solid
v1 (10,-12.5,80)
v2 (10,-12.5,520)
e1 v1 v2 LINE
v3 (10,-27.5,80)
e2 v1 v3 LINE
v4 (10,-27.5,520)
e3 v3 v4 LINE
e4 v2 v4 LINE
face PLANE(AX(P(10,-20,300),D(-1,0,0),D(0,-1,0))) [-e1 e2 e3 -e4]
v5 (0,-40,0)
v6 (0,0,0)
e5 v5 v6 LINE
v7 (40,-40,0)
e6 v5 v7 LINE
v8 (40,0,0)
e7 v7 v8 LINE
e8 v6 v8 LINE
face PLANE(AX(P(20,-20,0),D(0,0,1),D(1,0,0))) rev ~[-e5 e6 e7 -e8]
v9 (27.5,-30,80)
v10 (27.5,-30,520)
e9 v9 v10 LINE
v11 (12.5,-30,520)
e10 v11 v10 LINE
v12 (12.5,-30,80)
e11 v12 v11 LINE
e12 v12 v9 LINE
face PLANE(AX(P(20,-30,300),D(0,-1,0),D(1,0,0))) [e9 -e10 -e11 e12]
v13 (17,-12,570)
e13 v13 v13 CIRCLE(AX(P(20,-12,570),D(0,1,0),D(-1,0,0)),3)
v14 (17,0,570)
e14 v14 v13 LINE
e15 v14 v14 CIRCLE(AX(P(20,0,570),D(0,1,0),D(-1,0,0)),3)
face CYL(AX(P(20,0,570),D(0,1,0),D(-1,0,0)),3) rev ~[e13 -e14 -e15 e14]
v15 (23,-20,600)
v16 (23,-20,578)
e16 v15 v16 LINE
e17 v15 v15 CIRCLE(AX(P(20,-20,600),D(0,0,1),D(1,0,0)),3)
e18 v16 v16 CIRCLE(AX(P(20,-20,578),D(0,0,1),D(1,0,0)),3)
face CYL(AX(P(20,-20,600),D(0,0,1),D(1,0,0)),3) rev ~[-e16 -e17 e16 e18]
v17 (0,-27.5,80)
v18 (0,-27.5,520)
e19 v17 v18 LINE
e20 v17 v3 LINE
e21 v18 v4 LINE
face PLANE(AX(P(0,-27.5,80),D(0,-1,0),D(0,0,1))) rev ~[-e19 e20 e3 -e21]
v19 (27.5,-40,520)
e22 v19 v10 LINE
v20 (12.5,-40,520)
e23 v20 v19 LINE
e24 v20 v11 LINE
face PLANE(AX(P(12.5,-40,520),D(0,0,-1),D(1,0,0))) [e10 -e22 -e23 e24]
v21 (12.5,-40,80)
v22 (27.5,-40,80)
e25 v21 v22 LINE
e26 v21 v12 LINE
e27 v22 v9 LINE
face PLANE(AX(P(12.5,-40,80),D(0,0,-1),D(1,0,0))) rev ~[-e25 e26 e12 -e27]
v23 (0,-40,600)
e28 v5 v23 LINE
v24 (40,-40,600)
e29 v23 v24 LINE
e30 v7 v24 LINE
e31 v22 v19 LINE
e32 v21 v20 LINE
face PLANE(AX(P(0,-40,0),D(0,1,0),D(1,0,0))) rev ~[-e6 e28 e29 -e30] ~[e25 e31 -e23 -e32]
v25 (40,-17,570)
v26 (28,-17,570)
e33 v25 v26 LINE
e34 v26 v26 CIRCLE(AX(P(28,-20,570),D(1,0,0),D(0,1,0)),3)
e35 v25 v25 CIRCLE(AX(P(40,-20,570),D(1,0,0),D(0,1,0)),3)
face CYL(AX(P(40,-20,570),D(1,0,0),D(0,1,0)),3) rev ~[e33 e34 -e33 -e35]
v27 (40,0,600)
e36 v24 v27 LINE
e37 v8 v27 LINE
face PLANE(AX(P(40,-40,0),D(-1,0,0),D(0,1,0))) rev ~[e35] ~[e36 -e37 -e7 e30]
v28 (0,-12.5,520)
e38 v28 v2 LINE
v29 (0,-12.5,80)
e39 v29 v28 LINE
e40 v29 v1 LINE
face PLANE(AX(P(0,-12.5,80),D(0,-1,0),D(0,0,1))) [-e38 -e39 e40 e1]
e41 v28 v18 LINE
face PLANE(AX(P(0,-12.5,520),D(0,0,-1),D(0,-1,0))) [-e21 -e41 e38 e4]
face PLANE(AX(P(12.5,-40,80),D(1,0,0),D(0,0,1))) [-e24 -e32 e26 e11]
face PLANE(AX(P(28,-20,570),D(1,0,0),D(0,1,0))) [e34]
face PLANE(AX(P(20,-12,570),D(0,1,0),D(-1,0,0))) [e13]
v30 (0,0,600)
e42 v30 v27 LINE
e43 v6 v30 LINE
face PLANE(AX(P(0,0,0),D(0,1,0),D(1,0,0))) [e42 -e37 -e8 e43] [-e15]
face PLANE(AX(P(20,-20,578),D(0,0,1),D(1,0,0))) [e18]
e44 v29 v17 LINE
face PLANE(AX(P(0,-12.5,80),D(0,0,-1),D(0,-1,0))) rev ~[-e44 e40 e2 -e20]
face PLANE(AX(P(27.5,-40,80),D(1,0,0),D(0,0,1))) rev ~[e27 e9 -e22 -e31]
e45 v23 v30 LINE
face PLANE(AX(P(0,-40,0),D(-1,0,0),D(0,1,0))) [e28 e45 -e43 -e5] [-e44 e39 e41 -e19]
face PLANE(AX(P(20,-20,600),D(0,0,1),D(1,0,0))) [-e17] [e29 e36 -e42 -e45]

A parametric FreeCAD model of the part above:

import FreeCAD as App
import Part
import Sketcher

V = App.Vector

doc = App.newDocument("Part")
body = doc.addObject("PartDesign::Body", "Body")

# Sketch on XY plane
sketch1 = doc.addObject("Sketcher::SketchObject", "Sketch")
body.addObject(sketch1)
sketch1.AttachmentSupport = (doc.XY_Plane, [""])
sketch1.MapMode = "FlatFace"
sketch1.addGeometry([
    Part.LineSegment(V(0, 0, 0), V(0, -40, 0)),
    Part.LineSegment(V(0, -40, 0), V(40, -40, 0)),
    Part.LineSegment(V(40, -40, 0), V(40, 0, 0)),
    Part.LineSegment(V(40, 0, 0), V(0, 0, 0)),
], False)
sketch1.addConstraint([
    Sketcher.Constraint("Coincident", 0, 2, 1, 1),
    Sketcher.Constraint("Coincident", 1, 2, 2, 1),
    Sketcher.Constraint("Coincident", 2, 2, 3, 1),
    Sketcher.Constraint("Coincident", 3, 2, 0, 1),
    Sketcher.Constraint("Vertical", 0),
    Sketcher.Constraint("Horizontal", 1),
    Sketcher.Constraint("Vertical", 2),
    Sketcher.Constraint("Horizontal", 3),
    Sketcher.Constraint("Coincident", 3, 2, -1, 1),
    Sketcher.Constraint("Equal", 3, 0),
    Sketcher.Constraint("DistanceX", 1, 1, 1, 2, 40.0),
])
pad1 = doc.addObject("PartDesign::Pad", "Pad")
body.addObject(pad1)
pad1.Profile = sketch1
pad1.Length = 600

# Sketch on YZ plane
sketch2 = doc.addObject("Sketcher::SketchObject", "Sketch001")
body.addObject(sketch2)
sketch2.AttachmentSupport = (doc.YZ_Plane, [""])
sketch2.MapMode = "FlatFace"
sketch2.AttachmentOffset = App.Placement(V(0, 0, 40), App.Rotation())
sketch2.addGeometry(Part.Circle(V(-20, 570, 0), V(0, 0, 1), 3), False)
sketch2.addConstraint([
    Sketcher.Constraint("Diameter", 0, 6.0),
    Sketcher.Constraint("DistanceX", 0, 3, -1, 1, 20.0),
    Sketcher.Constraint("DistanceY", -1, 1, 0, 3, 570.0),
])
pocket1 = doc.addObject("PartDesign::Pocket", "Pocket")
body.addObject(pocket1)
pocket1.Profile = sketch2
pocket1.Length = 12

# Sketch on XZ plane
sketch3 = doc.addObject("Sketcher::SketchObject", "Sketch002")
body.addObject(sketch3)
sketch3.AttachmentSupport = (doc.XZ_Plane, [""])
sketch3.MapMode = "FlatFace"
sketch3.addGeometry(Part.Circle(V(20, 570, 0), V(0, 0, 1), 3), False)
sketch3.addConstraint([
    Sketcher.Constraint("Diameter", 0, 6.0),
    Sketcher.Constraint("DistanceX", -1, 1, 0, 3, 20.0),
    Sketcher.Constraint("DistanceY", -1, 1, 0, 3, 570.0),
])
pocket2 = doc.addObject("PartDesign::Pocket", "Pocket001")
body.addObject(pocket2)
pocket2.Profile = sketch3
pocket2.Length = 12
pocket2.Reversed = True

# Sketch on XY plane
sketch4 = doc.addObject("Sketcher::SketchObject", "Sketch003")
body.addObject(sketch4)
sketch4.AttachmentSupport = (doc.XY_Plane, [""])
sketch4.MapMode = "FlatFace"
sketch4.AttachmentOffset = App.Placement(V(0, 0, 600), App.Rotation())
sketch4.addGeometry(Part.Circle(V(20, -20, 0), V(0, 0, 1), 3), False)
sketch4.addConstraint([
    Sketcher.Constraint("Diameter", 0, 6.0),
    Sketcher.Constraint("DistanceX", -1, 1, 0, 3, 20.0),
    Sketcher.Constraint("DistanceY", 0, 3, -1, 1, 20.0),
])
pocket3 = doc.addObject("PartDesign::Pocket", "Pocket002")
body.addObject(pocket3)
pocket3.Profile = sketch4
pocket3.Length = 22

# Sketch on XZ plane
sketch5 = doc.addObject("Sketcher::SketchObject", "Sketch004")
body.addObject(sketch5)
sketch5.AttachmentSupport = (doc.XZ_Plane, [""])
sketch5.MapMode = "FlatFace"
sketch5.AttachmentOffset = App.Placement(V(0, 0, 40), App.Rotation())
sketch5.addGeometry([
    Part.LineSegment(V(12, 520, 0), V(12, 80, 0)),
    Part.LineSegment(V(12, 80, 0), V(28, 80, 0)),
    Part.LineSegment(V(28, 80, 0), V(28, 520, 0)),
    Part.LineSegment(V(28, 520, 0), V(12, 520, 0)),
], False)
sketch5.addConstraint([
    Sketcher.Constraint("Coincident", 0, 2, 1, 1),
    Sketcher.Constraint("Coincident", 1, 2, 2, 1),
    Sketcher.Constraint("Coincident", 2, 2, 3, 1),
    Sketcher.Constraint("Coincident", 3, 2, 0, 1),
    Sketcher.Constraint("Vertical", 0),
    Sketcher.Constraint("Horizontal", 1),
    Sketcher.Constraint("Vertical", 2),
    Sketcher.Constraint("Horizontal", 3),
    Sketcher.Constraint("DistanceX", 1, 1, 1, 2, 15.0),
    Sketcher.Constraint("DistanceY", 0, 2, 0, 1, 440.0),
    Sketcher.Constraint("DistanceY", -1, 1, 0, 2, 80.0),
    Sketcher.Constraint("DistanceX", -1, 1, 0, 2, 12.5),
])
pocket4 = doc.addObject("PartDesign::Pocket", "Pocket003")
body.addObject(pocket4)
pocket4.Profile = sketch5
pocket4.Length = 10

# Sketch on YZ plane
sketch6 = doc.addObject("Sketcher::SketchObject", "Sketch005")
body.addObject(sketch6)
sketch6.AttachmentSupport = (doc.YZ_Plane, [""])
sketch6.MapMode = "FlatFace"
sketch6.addGeometry([
    Part.LineSegment(V(-12, 520, 0), V(-12, 80, 0)),
    Part.LineSegment(V(-12, 80, 0), V(-28, 80, 0)),
    Part.LineSegment(V(-28, 80, 0), V(-28, 520, 0)),
    Part.LineSegment(V(-28, 520, 0), V(-12, 520, 0)),
], False)
sketch6.addConstraint([
    Sketcher.Constraint("Coincident", 0, 2, 1, 1),
    Sketcher.Constraint("Coincident", 1, 2, 2, 1),
    Sketcher.Constraint("Coincident", 2, 2, 3, 1),
    Sketcher.Constraint("Coincident", 3, 2, 0, 1),
    Sketcher.Constraint("Vertical", 0),
    Sketcher.Constraint("Horizontal", 1),
    Sketcher.Constraint("Vertical", 2),
    Sketcher.Constraint("Horizontal", 3),
    Sketcher.Constraint("DistanceX", 1, 2, 1, 1, 15.0),
    Sketcher.Constraint("DistanceY", 0, 2, 0, 1, 440.0),
    Sketcher.Constraint("DistanceY", -1, 1, 0, 2, 80.0),
    Sketcher.Constraint("DistanceX", 0, 2, -1, 1, 12.5),
])
pocket5 = doc.addObject("PartDesign::Pocket", "Pocket004")
body.addObject(pocket5)
pocket5.Profile = sketch6
pocket5.Length = 10
pocket5.Reversed = True

doc.recompute()
